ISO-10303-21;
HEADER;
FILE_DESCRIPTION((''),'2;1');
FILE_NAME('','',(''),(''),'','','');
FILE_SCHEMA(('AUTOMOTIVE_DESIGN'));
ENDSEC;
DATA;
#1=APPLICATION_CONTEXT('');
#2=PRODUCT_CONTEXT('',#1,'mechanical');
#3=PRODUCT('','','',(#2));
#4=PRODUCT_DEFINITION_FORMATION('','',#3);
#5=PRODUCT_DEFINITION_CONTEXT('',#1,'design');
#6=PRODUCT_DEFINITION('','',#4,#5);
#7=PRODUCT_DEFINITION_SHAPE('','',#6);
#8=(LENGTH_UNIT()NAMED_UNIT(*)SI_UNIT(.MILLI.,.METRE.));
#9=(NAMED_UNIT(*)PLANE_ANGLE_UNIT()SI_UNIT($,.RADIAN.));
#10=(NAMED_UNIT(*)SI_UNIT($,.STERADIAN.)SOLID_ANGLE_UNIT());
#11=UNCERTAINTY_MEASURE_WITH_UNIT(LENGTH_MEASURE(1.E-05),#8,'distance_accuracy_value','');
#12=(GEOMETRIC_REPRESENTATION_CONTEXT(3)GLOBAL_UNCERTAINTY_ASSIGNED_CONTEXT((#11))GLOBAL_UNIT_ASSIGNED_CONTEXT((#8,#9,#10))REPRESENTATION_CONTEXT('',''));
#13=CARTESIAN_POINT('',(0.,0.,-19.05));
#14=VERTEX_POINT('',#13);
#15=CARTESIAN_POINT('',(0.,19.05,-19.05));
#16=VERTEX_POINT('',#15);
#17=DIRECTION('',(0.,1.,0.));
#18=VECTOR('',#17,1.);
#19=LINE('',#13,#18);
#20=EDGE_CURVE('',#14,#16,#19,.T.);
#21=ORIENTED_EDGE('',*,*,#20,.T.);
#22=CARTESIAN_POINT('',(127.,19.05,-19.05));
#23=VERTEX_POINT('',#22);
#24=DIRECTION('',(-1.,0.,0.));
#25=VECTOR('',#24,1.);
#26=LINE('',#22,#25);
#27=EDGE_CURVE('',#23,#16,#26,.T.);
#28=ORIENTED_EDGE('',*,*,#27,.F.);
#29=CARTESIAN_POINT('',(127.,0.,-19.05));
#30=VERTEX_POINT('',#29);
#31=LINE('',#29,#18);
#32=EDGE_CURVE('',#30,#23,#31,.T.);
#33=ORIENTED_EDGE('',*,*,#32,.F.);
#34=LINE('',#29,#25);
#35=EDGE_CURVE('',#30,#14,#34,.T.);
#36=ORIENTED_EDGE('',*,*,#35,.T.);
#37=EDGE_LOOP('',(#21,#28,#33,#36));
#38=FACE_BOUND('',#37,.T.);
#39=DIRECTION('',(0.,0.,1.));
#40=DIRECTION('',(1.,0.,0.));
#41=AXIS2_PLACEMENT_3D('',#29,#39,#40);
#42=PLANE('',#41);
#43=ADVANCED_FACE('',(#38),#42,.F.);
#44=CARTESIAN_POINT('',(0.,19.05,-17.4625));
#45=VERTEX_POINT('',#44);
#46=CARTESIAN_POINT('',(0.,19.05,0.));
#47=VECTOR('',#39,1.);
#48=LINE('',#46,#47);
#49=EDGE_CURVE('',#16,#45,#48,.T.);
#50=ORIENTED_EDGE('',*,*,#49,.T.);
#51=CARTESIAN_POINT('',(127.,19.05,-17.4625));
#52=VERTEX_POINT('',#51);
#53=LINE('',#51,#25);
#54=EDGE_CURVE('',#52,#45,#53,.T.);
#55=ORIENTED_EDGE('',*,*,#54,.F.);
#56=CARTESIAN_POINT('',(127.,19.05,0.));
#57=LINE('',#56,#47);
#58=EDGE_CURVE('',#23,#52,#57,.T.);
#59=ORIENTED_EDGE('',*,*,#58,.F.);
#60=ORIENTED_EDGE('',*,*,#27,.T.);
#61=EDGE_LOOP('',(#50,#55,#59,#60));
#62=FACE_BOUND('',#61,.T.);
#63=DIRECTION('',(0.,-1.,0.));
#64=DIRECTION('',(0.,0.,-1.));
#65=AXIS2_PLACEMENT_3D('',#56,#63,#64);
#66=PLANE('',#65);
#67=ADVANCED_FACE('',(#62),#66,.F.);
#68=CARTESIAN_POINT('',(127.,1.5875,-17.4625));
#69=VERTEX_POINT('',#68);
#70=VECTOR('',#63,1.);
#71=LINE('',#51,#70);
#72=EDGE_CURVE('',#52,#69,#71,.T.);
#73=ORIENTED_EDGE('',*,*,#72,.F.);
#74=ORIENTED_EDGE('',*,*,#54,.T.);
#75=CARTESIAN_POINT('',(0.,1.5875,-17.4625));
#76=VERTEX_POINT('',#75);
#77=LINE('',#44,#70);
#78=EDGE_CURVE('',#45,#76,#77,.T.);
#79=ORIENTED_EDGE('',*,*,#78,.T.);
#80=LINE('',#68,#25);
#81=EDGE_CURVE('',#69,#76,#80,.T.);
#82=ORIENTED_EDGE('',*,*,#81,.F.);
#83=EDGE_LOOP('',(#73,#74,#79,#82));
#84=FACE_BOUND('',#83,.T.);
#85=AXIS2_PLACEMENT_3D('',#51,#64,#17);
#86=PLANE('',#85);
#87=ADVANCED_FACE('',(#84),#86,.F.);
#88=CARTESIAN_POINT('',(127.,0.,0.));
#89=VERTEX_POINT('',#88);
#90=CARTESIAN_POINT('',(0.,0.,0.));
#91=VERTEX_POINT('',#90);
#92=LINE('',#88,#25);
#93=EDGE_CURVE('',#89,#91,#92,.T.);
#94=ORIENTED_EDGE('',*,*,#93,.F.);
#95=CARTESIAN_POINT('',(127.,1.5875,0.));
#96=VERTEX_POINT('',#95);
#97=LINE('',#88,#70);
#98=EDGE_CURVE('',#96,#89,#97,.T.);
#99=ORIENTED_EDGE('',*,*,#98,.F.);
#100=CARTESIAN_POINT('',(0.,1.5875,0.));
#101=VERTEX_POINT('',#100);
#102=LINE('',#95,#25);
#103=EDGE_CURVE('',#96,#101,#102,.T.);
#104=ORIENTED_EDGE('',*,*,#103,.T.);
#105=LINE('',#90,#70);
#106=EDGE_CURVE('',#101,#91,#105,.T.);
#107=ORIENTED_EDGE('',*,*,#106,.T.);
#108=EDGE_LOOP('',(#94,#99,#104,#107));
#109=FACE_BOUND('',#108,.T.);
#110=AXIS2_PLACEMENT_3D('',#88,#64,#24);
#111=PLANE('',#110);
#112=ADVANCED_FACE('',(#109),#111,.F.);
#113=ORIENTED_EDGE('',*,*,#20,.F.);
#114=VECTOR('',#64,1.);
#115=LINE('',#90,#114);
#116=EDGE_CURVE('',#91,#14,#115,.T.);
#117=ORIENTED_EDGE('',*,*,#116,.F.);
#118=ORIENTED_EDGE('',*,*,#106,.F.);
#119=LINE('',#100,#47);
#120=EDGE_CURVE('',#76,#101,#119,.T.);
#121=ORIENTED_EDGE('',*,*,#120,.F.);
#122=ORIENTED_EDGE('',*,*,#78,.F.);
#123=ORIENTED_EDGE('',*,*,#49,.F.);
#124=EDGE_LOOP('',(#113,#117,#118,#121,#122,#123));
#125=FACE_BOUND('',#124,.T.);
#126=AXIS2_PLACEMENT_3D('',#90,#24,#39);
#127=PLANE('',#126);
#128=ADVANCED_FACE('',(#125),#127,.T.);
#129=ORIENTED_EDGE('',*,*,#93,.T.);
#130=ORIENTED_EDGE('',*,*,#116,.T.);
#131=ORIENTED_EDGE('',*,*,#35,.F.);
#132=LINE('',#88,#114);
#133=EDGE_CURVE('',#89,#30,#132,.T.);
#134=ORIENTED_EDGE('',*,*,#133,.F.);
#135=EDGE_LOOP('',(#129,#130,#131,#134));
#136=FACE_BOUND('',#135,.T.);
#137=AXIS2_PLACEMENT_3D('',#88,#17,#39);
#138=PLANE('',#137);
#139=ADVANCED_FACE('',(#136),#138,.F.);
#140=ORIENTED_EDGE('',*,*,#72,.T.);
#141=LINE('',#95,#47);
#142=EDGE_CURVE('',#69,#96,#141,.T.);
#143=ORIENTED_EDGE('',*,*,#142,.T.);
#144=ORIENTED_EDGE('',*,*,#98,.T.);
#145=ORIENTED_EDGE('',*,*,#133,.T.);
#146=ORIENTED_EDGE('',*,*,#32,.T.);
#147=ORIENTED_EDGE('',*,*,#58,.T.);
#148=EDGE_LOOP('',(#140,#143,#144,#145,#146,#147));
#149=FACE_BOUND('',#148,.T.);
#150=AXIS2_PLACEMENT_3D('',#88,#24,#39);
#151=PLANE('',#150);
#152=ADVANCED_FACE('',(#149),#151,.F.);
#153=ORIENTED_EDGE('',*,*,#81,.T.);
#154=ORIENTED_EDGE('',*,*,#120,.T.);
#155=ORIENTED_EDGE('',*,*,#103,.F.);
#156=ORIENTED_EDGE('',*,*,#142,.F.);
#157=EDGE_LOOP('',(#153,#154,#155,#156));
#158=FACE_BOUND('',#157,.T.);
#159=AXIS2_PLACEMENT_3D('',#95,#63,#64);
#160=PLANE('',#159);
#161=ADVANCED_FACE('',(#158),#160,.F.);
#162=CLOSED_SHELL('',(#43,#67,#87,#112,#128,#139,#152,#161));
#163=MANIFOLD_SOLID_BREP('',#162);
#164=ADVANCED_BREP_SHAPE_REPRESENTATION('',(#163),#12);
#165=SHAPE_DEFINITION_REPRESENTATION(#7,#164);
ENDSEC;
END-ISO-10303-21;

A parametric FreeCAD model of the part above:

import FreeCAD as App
import Part
import Sketcher
from FreeCAD import Vector
Q = App.Units.Quantity


def add_polygon(sketch, points):
    """Adds a closed chain of lines whose ends are joined by coincident constraints."""
    first, n = sketch.GeometryCount, len(points)
    for a, b in zip(points, points[1:] + points[:1]):
        sketch.addGeometry(Part.LineSegment(App.Vector(*a, 0), App.Vector(*b, 0)), False)
    for i in range(n):
        sketch.addConstraint(Sketcher.Constraint("Coincident", first + i, 2, first + (i + 1) % n, 1))

doc = App.newDocument("Part")
body = doc.addObject("PartDesign::Body", "Body")

# Sketch on YZ plane
sketch1 = body.newObject("Sketcher::SketchObject", "Sketch")
sketch1.AttachmentSupport = (doc.getObject("YZ_Plane"), [""])
sketch1.MapMode = "FlatFace"
add_polygon(sketch1, [(19, 0), (0, 0), (0, -19), (19, -19)])  # lines 0-3
sketch1.addConstraint(Sketcher.Constraint("Horizontal", 0))
sketch1.addConstraint(Sketcher.Constraint("Vertical", 1))
sketch1.addConstraint(Sketcher.Constraint("Horizontal", 2))
sketch1.addConstraint(Sketcher.Constraint("Vertical", 3))
sketch1.addConstraint(Sketcher.Constraint("Coincident", 0, 2, -1, 1))
sketch1.addConstraint(Sketcher.Constraint("Equal", 2, 1))
sketch1.addConstraint(Sketcher.Constraint("DistanceX", 0, 2, 0, 1, Q("0.75 in")))
pad1 = body.newObject("PartDesign::Pad", "Pad")
pad1.Profile = sketch1
pad1.Length = Q("5 in")

# Sketch on YZ plane
sketch2 = body.newObject("Sketcher::SketchObject", "Sketch001")
sketch2.AttachmentSupport = (doc.getObject("YZ_Plane"), [""])
sketch2.MapMode = "FlatFace"
add_polygon(sketch2, [(19, -17), (2, -17), (2, 0), (19, 0)])  # lines 0-3
sketch2.addConstraint(Sketcher.Constraint("Horizontal", 0))
sketch2.addConstraint(Sketcher.Constraint("Vertical", 1))
sketch2.addConstraint(Sketcher.Constraint("Horizontal", 2))
sketch2.addConstraint(Sketcher.Constraint("Vertical", 3))
sketch2.addConstraint(Sketcher.Constraint("PointOnObject", 1, 2, -1))
sketch2.addConstraint(Sketcher.Constraint("Equal", 2, 1))
sketch2.addConstraint(Sketcher.Constraint("DistanceX", 0, 2, 0, 1, Q("0.6875 in")))
sketch2.addConstraint(Sketcher.Constraint("DistanceX", -1, 1, 2, 2, Q("0.75 in")))
pocket1 = body.newObject("PartDesign::Pocket", "Pocket")
pocket1.Profile = sketch2
pocket1.Length = Q("5 in")
pocket1.Reversed = True

doc.recompute()
